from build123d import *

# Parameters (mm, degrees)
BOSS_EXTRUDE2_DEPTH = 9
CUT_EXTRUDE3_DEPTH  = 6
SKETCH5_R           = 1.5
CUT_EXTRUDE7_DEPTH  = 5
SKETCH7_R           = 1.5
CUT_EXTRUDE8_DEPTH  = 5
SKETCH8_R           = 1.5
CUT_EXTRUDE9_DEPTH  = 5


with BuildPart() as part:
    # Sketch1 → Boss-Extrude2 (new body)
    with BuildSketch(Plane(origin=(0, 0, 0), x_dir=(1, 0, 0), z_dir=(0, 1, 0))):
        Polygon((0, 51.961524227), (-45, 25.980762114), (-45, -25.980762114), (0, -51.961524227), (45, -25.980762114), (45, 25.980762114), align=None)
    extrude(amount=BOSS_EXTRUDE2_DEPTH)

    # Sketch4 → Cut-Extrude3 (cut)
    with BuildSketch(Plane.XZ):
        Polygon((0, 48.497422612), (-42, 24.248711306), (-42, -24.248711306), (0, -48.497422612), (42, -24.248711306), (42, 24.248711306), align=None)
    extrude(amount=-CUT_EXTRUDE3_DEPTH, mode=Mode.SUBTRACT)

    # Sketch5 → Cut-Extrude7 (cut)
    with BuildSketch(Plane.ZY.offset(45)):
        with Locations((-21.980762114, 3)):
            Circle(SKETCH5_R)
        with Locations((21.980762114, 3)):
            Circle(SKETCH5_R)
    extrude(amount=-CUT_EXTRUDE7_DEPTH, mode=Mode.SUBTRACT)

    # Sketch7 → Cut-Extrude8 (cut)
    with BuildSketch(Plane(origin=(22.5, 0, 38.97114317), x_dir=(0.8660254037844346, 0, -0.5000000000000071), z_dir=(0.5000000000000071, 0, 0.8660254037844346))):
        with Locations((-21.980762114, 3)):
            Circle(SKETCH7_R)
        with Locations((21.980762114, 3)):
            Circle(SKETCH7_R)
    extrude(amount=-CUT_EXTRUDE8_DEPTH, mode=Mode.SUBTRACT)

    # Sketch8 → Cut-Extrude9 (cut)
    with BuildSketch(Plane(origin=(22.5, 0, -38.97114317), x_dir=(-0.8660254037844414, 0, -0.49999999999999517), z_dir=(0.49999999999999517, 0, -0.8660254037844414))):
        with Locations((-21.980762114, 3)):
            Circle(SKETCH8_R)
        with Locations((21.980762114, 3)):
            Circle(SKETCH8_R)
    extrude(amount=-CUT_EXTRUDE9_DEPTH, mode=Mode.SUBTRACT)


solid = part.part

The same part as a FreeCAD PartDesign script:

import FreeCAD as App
import Part
import Sketcher
from FreeCAD import Vector
Q = App.Units.Quantity


def add_polygon(sketch, points):
    """Adds a closed chain of lines whose ends are joined by coincident constraints."""
    first, n = sketch.GeometryCount, len(points)
    for a, b in zip(points, points[1:] + points[:1]):
        sketch.addGeometry(Part.LineSegment(App.Vector(*a, 0), App.Vector(*b, 0)), False)
    for i in range(n):
        sketch.addConstraint(Sketcher.Constraint("Coincident", first + i, 2, first + (i + 1) % n, 1))

doc = App.newDocument("Part")
body = doc.addObject("PartDesign::Body", "Body")

# Sketch on XZ plane
sketch1 = body.newObject("Sketcher::SketchObject", "Sketch")
sketch1.AttachmentSupport = (doc.getObject("XZ_Plane"), [""])
sketch1.MapMode = "FlatFace"
add_polygon(sketch1, [(0, -52), (-45, -26), (-45, 26), (0, 52), (45, 26), (45, -26)])  # lines 0-5
sketch1.addConstraint([
    Sketcher.Constraint("Vertical", 1),
    Sketcher.Constraint("Vertical", 4),
    Sketcher.Constraint("Symmetric", 0, 2, 3, 2, -1, 1),
    Sketcher.Constraint("Symmetric", 2, 2, 5, 2, -1, 1),
    Sketcher.Constraint("PointOnObject", 2, 2, -2),
    Sketcher.Constraint("Parallel", 2, 5),
    Sketcher.Constraint("Horizontal", 1, 2, 3, 2),
    Sketcher.Constraint("Angle", 0, Q("150 deg")),
    Sketcher.Constraint("DistanceX", 0, 2, -1, 1, Q("45 mm")),
    Sketcher.Constraint("DistanceY", 1, 1, 1, 2, Q("51.961524 mm")),
])
pad1 = body.newObject("PartDesign::Pad", "Pad")
pad1.Profile = sketch1
pad1.Length = 9
pad1.Reversed = True

# Sketch on XZ plane
sketch2 = body.newObject("Sketcher::SketchObject", "Sketch001")
sketch2.AttachmentSupport = (doc.getObject("XZ_Plane"), [""])
sketch2.MapMode = "FlatFace"
add_polygon(sketch2, [(0, 48), (-42, 24), (-42, -24), (0, -48), (42, -24), (42, 24)])  # lines 0-5
sketch2.addConstraint([
    Sketcher.Constraint("Vertical", 1),
    Sketcher.Constraint("Vertical", 4),
    Sketcher.Constraint("Symmetric", 0, 2, 3, 2, -1, 1),
    Sketcher.Constraint("Symmetric", 2, 2, 5, 2, -1, 1),
    Sketcher.Constraint("PointOnObject", 2, 2, -2),
    Sketcher.Constraint("Parallel", 2, 5),
    Sketcher.Constraint("Horizontal", 1, 2, 3, 2),
    Sketcher.Constraint("Angle", 0, Q("-150 deg")),
    Sketcher.Constraint("DistanceX", 0, 2, -1, 1, Q("42 mm")),
    Sketcher.Constraint("DistanceY", 1, 2, 1, 1, Q("48.497423 mm")),
])
pocket1 = body.newObject("PartDesign::Pocket", "Pocket")
pocket1.Profile = sketch2
pocket1.Length = 6

# Sketch on YZ plane
sketch3 = body.newObject("Sketcher::SketchObject", "Sketch002")
sketch3.AttachmentSupport = (doc.getObject("YZ_Plane"), [""])
sketch3.MapMode = "FlatFace"
sketch3.AttachmentOffset = App.Placement(Vector(0, 0, -45), App.Rotation())
sketch3.addGeometry([
    Part.Circle(Vector(3, -22, 0), Vector(0, 0, 1), 1.5),
    Part.Circle(Vector(3, 22, 0), Vector(0, 0, 1), 1.5),
], False)
sketch3.addConstraint([
    Sketcher.Constraint("Equal", 0, 1),
    Sketcher.Constraint("Symmetric", 0, 3, 1, 3, -1),
    Sketcher.Constraint("Diameter", 0, Q("3 mm")),
    Sketcher.Constraint("DistanceX", -1, 1, 0, 3, Q("3 mm")),
    Sketcher.Constraint("DistanceY", 0, 3, -1, 1, Q("21.980762 mm")),
])
pocket2 = body.newObject("PartDesign::Pocket", "Pocket001")
pocket2.Profile = sketch3
pocket2.Length = 5
pocket2.Reversed = True

# Sketch on an angled plane
sketch4 = body.newObject("Sketcher::SketchObject", "Sketch003")
sketch4.Placement = App.Placement(Vector(22.5, 0, 38.971143), App.Rotation(Vector(0.866025404, 0, -0.5), Vector(0, 1, 0), Vector(0.5, 0, 0.866025404), "ZXY"))
sketch4.addGeometry([
    Part.Circle(Vector(-22, 3, 0), Vector(0, 0, 1), 1.5),
    Part.Circle(Vector(22, 3, 0), Vector(0, 0, 1), 1.5),
], False)
sketch4.addConstraint([
    Sketcher.Constraint("Equal", 0, 1),
    Sketcher.Constraint("Symmetric", 0, 3, 1, 3, -2),
    Sketcher.Constraint("Diameter", 0, Q("3 mm")),
    Sketcher.Constraint("DistanceY", -1, 1, 0, 3, Q("3 mm")),
    Sketcher.Constraint("DistanceX", 0, 3, -1, 1, Q("21.980762 mm")),
])
pocket3 = body.newObject("PartDesign::Pocket", "Pocket002")
pocket3.Profile = sketch4
pocket3.Length = 5

# Sketch on an angled plane
sketch5 = body.newObject("Sketcher::SketchObject", "Sketch004")
sketch5.Placement = App.Placement(Vector(22.5, 0, -38.971143), App.Rotation(Vector(-0.866025404, 0, -0.5), Vector(0, 1, 0), Vector(0.5, 0, -0.866025404), "ZXY"))
sketch5.addGeometry([
    Part.Circle(Vector(-22, 3, 0), Vector(0, 0, 1), 1.5),
    Part.Circle(Vector(22, 3, 0), Vector(0, 0, 1), 1.5),
], False)
sketch5.addConstraint([
    Sketcher.Constraint("Equal", 0, 1),
    Sketcher.Constraint("Symmetric", 0, 3, 1, 3, -2),
    Sketcher.Constraint("Diameter", 0, Q("3 mm")),
    Sketcher.Constraint("DistanceY", -1, 1, 0, 3, Q("3 mm")),
    Sketcher.Constraint("DistanceX", 0, 3, -1, 1, Q("21.980762 mm")),
])
pocket4 = body.newObject("PartDesign::Pocket", "Pocket003")
pocket4.Profile = sketch5
pocket4.Length = 5

doc.recompute()
